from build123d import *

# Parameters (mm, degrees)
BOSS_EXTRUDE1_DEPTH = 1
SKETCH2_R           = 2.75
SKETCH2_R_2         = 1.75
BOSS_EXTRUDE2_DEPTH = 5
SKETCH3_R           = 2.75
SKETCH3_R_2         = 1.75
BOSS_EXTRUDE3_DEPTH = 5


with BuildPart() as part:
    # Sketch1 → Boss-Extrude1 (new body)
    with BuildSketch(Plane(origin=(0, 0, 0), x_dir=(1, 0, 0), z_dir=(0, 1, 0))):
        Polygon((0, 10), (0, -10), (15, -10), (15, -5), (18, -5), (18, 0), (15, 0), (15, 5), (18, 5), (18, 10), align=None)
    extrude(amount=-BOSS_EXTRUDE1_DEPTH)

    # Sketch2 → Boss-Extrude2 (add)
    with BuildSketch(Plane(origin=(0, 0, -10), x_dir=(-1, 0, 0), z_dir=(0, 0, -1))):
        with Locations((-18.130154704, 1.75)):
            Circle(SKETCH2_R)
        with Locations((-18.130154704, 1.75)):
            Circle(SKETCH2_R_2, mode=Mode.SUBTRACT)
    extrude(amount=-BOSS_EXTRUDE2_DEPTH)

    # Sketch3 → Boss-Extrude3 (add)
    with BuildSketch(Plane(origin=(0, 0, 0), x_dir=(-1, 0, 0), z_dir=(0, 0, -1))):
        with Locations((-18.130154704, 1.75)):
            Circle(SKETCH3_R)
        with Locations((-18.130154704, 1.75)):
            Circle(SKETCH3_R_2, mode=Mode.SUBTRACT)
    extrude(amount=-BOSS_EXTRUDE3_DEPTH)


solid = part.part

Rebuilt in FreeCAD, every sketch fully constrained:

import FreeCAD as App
import Part
import Sketcher
Q = App.Units.Quantity

doc = App.newDocument("Part")
body = doc.addObject("PartDesign::Body", "Body")

# Sketch on XZ plane
sketch1 = doc.addObject("Sketcher::SketchObject", "Sketch")
body.addObject(sketch1)
sketch1.AttachmentSupport = (doc.XZ_Plane, [""])
sketch1.MapMode = "FlatFace"
sketch1.addGeometry(Part.LineSegment(App.Vector(0, -10, 0), App.Vector(0, 10, 0)), False)
sketch1.addGeometry(Part.LineSegment(App.Vector(0, 10, 0), App.Vector(15, 10, 0)), False)
sketch1.addGeometry(Part.LineSegment(App.Vector(15, 10, 0), App.Vector(15, 5, 0)), False)
sketch1.addGeometry(Part.LineSegment(App.Vector(15, 5, 0), App.Vector(18, 5, 0)), False)
sketch1.addGeometry(Part.LineSegment(App.Vector(18, 5, 0), App.Vector(18, 0, 0)), False)
sketch1.addGeometry(Part.LineSegment(App.Vector(18, 0, 0), App.Vector(15, 0, 0)), False)
sketch1.addGeometry(Part.LineSegment(App.Vector(15, 0, 0), App.Vector(15, -5, 0)), False)
sketch1.addGeometry(Part.LineSegment(App.Vector(15, -5, 0), App.Vector(18, -5, 0)), False)
sketch1.addGeometry(Part.LineSegment(App.Vector(18, -5, 0), App.Vector(18, -10, 0)), False)
sketch1.addGeometry(Part.LineSegment(App.Vector(18, -10, 0), App.Vector(0, -10, 0)), False)
sketch1.addConstraint(Sketcher.Constraint("Coincident", 0, 2, 1, 1))
sketch1.addConstraint(Sketcher.Constraint("Coincident", 1, 2, 2, 1))
sketch1.addConstraint(Sketcher.Constraint("Coincident", 2, 2, 3, 1))
sketch1.addConstraint(Sketcher.Constraint("Coincident", 3, 2, 4, 1))
sketch1.addConstraint(Sketcher.Constraint("Coincident", 4, 2, 5, 1))
sketch1.addConstraint(Sketcher.Constraint("Coincident", 5, 2, 6, 1))
sketch1.addConstraint(Sketcher.Constraint("Coincident", 6, 2, 7, 1))
sketch1.addConstraint(Sketcher.Constraint("Coincident", 7, 2, 8, 1))
sketch1.addConstraint(Sketcher.Constraint("Coincident", 8, 2, 9, 1))
sketch1.addConstraint(Sketcher.Constraint("Coincident", 9, 2, 0, 1))
sketch1.addConstraint(Sketcher.Constraint("Vertical", 0))
sketch1.addConstraint(Sketcher.Constraint("Horizontal", 1))
sketch1.addConstraint(Sketcher.Constraint("Vertical", 2))
sketch1.addConstraint(Sketcher.Constraint("Horizontal", 3))
sketch1.addConstraint(Sketcher.Constraint("Vertical", 4))
sketch1.addConstraint(Sketcher.Constraint("Horizontal", 5))
sketch1.addConstraint(Sketcher.Constraint("Vertical", 6))
sketch1.addConstraint(Sketcher.Constraint("Horizontal", 7))
sketch1.addConstraint(Sketcher.Constraint("Vertical", 8))
sketch1.addConstraint(Sketcher.Constraint("Horizontal", 9))
sketch1.addConstraint(Sketcher.Constraint("Symmetric", 0, 2, 9, 2, -1, 1))
sketch1.addConstraint(Sketcher.Constraint("Symmetric", 2, 2, 6, 2, -1))
sketch1.addConstraint(Sketcher.Constraint("PointOnObject", 4, 2, -1))
sketch1.addConstraint(Sketcher.Constraint("Vertical", 4, 2, 7, 2))
sketch1.addConstraint(Sketcher.Constraint("Equal", 2, 4))
sketch1.addConstraint(Sketcher.Constraint("DistanceX", 1, 1, 1, 2, Q("15 mm")))
sketch1.addConstraint(Sketcher.Constraint("DistanceX", 3, 1, 3, 2, Q("3 mm")))
sketch1.addConstraint(Sketcher.Constraint("DistanceY", 0, 1, 0, 2, Q("20 mm")))
pad1 = doc.addObject("PartDesign::Pad", "Pad")
body.addObject(pad1)
pad1.Profile = sketch1
pad1.Length = 1

# Sketch on XY plane
sketch2 = doc.addObject("Sketcher::SketchObject", "Sketch001")
body.addObject(sketch2)
sketch2.AttachmentSupport = (doc.XY_Plane, [""])
sketch2.MapMode = "FlatFace"
sketch2.AttachmentOffset = App.Placement(App.Vector(0, 0, -10), App.Rotation())
sketch2.addGeometry(Part.Circle(App.Vector(18.1, 1.8, 0), App.Vector(0, 0, 1), 2.8), False)
sketch2.addGeometry(Part.Circle(App.Vector(18.1, 1.8, 0), App.Vector(0, 0, 1), 1.8), False)
sketch2.addConstraint(Sketcher.Constraint("Coincident", 1, 3, 0, 3))
sketch2.addConstraint(Sketcher.Constraint("Diameter", 0, Q("5.5 mm")))
sketch2.addConstraint(Sketcher.Constraint("Diameter", 1, Q("3.5 mm")))
sketch2.addConstraint(Sketcher.Constraint("DistanceY", -1, 1, 0, 3, Q("1.75 mm")))
sketch2.addConstraint(Sketcher.Constraint("DistanceX", -1, 1, 0, 3, Q("18.130155 mm")))
pad2 = doc.addObject("PartDesign::Pad", "Pad001")
body.addObject(pad2)
pad2.Profile = sketch2
pad2.Length = 5

# Sketch on XY plane
sketch3 = doc.addObject("Sketcher::SketchObject", "Sketch002")
body.addObject(sketch3)
sketch3.AttachmentSupport = (doc.XY_Plane, [""])
sketch3.MapMode = "FlatFace"
sketch3.addGeometry(Part.Circle(App.Vector(18.1, 1.8, 0), App.Vector(0, 0, 1), 2.8), False)
sketch3.addGeometry(Part.Circle(App.Vector(18.1, 1.8, 0), App.Vector(0, 0, 1), 1.8), False)
sketch3.addConstraint(Sketcher.Constraint("Coincident", 1, 3, 0, 3))
sketch3.addConstraint(Sketcher.Constraint("Diameter", 0, Q("5.5 mm")))
sketch3.addConstraint(Sketcher.Constraint("Diameter", 1, Q("3.5 mm")))
sketch3.addConstraint(Sketcher.Constraint("DistanceY", -1, 1, 0, 3, Q("1.75 mm")))
sketch3.addConstraint(Sketcher.Constraint("DistanceX", -1, 1, 0, 3, Q("18.130155 mm")))
pad3 = doc.addObject("PartDesign::Pad", "Pad002")
body.addObject(pad3)
pad3.Profile = sketch3
pad3.Length = 5

doc.recompute()
